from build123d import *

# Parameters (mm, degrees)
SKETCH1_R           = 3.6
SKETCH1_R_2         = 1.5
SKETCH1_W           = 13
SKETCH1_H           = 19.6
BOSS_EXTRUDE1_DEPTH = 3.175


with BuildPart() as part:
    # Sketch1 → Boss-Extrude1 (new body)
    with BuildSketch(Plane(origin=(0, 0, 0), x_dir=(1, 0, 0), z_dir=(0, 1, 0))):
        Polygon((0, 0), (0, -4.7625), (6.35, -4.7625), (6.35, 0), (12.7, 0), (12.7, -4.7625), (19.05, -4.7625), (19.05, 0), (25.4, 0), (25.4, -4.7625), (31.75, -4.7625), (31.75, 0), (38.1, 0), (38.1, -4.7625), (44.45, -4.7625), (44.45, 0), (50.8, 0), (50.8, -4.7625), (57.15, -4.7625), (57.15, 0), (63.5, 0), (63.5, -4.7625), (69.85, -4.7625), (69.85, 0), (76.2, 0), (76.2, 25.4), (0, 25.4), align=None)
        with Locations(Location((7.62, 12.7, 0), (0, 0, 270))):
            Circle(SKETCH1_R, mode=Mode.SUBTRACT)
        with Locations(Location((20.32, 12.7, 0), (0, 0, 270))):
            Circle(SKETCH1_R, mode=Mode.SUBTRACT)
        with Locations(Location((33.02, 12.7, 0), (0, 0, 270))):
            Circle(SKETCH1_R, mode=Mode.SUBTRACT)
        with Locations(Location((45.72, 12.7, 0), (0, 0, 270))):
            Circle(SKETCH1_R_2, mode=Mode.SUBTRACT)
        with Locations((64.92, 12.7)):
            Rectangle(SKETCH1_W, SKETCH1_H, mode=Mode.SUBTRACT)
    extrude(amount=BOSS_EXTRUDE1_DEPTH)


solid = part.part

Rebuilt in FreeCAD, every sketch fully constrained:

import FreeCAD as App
import Part
import Sketcher
Q = App.Units.Quantity

doc = App.newDocument("Part")
body = doc.addObject("PartDesign::Body", "Body")

sketch1 = body.newObject("Sketcher::SketchObject", "Sketch")
sketch1.AttachmentSupport = (doc.getObject("XZ_Plane"), [""])
sketch1.MapMode = "FlatFace"
sketch1.addGeometry(Part.LineSegment(App.Vector(0, 4.7625, 0), App.Vector(6.35, 4.7625, 0)), False)
sketch1.addGeometry(Part.LineSegment(App.Vector(6.35, 4.7625, 0), App.Vector(6.35, 0, 0)), False)
sketch1.addGeometry(Part.LineSegment(App.Vector(6.35, 0, 0), App.Vector(12.7, 0, 0)), False)
sketch1.addGeometry(Part.LineSegment(App.Vector(12.7, 0, 0), App.Vector(12.7, 4.7625, 0)), False)
sketch1.addGeometry(Part.LineSegment(App.Vector(12.7, 4.7625, 0), App.Vector(19.05, 4.7625, 0)), False)
sketch1.addGeometry(Part.LineSegment(App.Vector(19.05, 4.7625, 0), App.Vector(19.05, 0, 0)), False)
sketch1.addGeometry(Part.LineSegment(App.Vector(19.05, 0, 0), App.Vector(25.4, 0, 0)), False)
sketch1.addGeometry(Part.LineSegment(App.Vector(25.4, 0, 0), App.Vector(25.4, 4.7625, 0)), False)
sketch1.addGeometry(Part.LineSegment(App.Vector(25.4, 4.7625, 0), App.Vector(31.75, 4.7625, 0)), False)
sketch1.addGeometry(Part.LineSegment(App.Vector(31.75, 4.7625, 0), App.Vector(31.75, 0, 0)), False)
sketch1.addGeometry(Part.LineSegment(App.Vector(31.75, 0, 0), App.Vector(38.1, 0, 0)), False)
sketch1.addGeometry(Part.LineSegment(App.Vector(38.1, 0, 0), App.Vector(38.1, 4.7625, 0)), False)
sketch1.addGeometry(Part.LineSegment(App.Vector(38.1, 4.7625, 0), App.Vector(44.45, 4.7625, 0)), False)
sketch1.addGeometry(Part.LineSegment(App.Vector(44.45, 4.7625, 0), App.Vector(44.45, 0, 0)), False)
sketch1.addGeometry(Part.LineSegment(App.Vector(44.45, 0, 0), App.Vector(50.8, 0, 0)), False)
sketch1.addGeometry(Part.LineSegment(App.Vector(50.8, 0, 0), App.Vector(50.8, 4.7625, 0)), False)
sketch1.addGeometry(Part.LineSegment(App.Vector(50.8, 4.7625, 0), App.Vector(57.15, 4.7625, 0)), False)
sketch1.addGeometry(Part.LineSegment(App.Vector(57.15, 4.7625, 0), App.Vector(57.15, 0, 0)), False)
sketch1.addGeometry(Part.LineSegment(App.Vector(57.15, 0, 0), App.Vector(63.5, 0, 0)), False)
sketch1.addGeometry(Part.LineSegment(App.Vector(63.5, 0, 0), App.Vector(63.5, 4.7625, 0)), False)
sketch1.addGeometry(Part.LineSegment(App.Vector(63.5, 4.7625, 0), App.Vector(69.85, 4.7625, 0)), False)
sketch1.addGeometry(Part.LineSegment(App.Vector(69.85, 4.7625, 0), App.Vector(69.85, 0, 0)), False)
sketch1.addGeometry(Part.LineSegment(App.Vector(69.85, 0, 0), App.Vector(76.2, 0, 0)), False)
sketch1.addGeometry(Part.LineSegment(App.Vector(76.2, 0, 0), App.Vector(76.2, -25.4, 0)), False)
sketch1.addGeometry(Part.LineSegment(App.Vector(76.2, -25.4, 0), App.Vector(0, -25.4, 0)), False)
sketch1.addGeometry(Part.LineSegment(App.Vector(0, -25.4, 0), App.Vector(0, 4.7625, 0)), False)
sketch1.addGeometry(Part.Circle(App.Vector(7.62, -12.7, 0), App.Vector(0, 0, 1), 3.6), False)
sketch1.addGeometry(Part.Circle(App.Vector(20.32, -12.7, 0), App.Vector(0, 0, 1), 3.6), False)
sketch1.addGeometry(Part.Circle(App.Vector(33.02, -12.7, 0), App.Vector(0, 0, 1), 3.6), False)
sketch1.addGeometry(Part.Circle(App.Vector(45.72, -12.7, 0), App.Vector(0, 0, 1), 1.5), False)
sketch1.addGeometry(Part.LineSegment(App.Vector(71.42, -2.9, 0), App.Vector(58.42, -2.9, 0)), False)
sketch1.addGeometry(Part.LineSegment(App.Vector(58.42, -2.9, 0), App.Vector(58.42, -22.5, 0)), False)
sketch1.addGeometry(Part.LineSegment(App.Vector(58.42, -22.5, 0), App.Vector(71.42, -22.5, 0)), False)
sketch1.addGeometry(Part.LineSegment(App.Vector(71.42, -22.5, 0), App.Vector(71.42, -2.9, 0)), False)
sketch1.addConstraint(Sketcher.Constraint("Coincident", 0, 2, 1, 1))
sketch1.addConstraint(Sketcher.Constraint("Coincident", 1, 2, 2, 1))
sketch1.addConstraint(Sketcher.Constraint("Coincident", 2, 2, 3, 1))
sketch1.addConstraint(Sketcher.Constraint("Coincident", 3, 2, 4, 1))
sketch1.addConstraint(Sketcher.Constraint("Coincident", 4, 2, 5, 1))
sketch1.addConstraint(Sketcher.Constraint("Coincident", 5, 2, 6, 1))
sketch1.addConstraint(Sketcher.Constraint("Coincident", 6, 2, 7, 1))
sketch1.addConstraint(Sketcher.Constraint("Coincident", 7, 2, 8, 1))
sketch1.addConstraint(Sketcher.Constraint("Coincident", 8, 2, 9, 1))
sketch1.addConstraint(Sketcher.Constraint("Coincident", 9, 2, 10, 1))
sketch1.addConstraint(Sketcher.Constraint("Coincident", 10, 2, 11, 1))
sketch1.addConstraint(Sketcher.Constraint("Coincident", 11, 2, 12, 1))
sketch1.addConstraint(Sketcher.Constraint("Coincident", 12, 2, 13, 1))
sketch1.addConstraint(Sketcher.Constraint("Coincident", 13, 2, 14, 1))
sketch1.addConstraint(Sketcher.Constraint("Coincident", 14, 2, 15, 1))
sketch1.addConstraint(Sketcher.Constraint("Coincident", 15, 2, 16, 1))
sketch1.addConstraint(Sketcher.Constraint("Coincident", 16, 2, 17, 1))
sketch1.addConstraint(Sketcher.Constraint("Coincident", 17, 2, 18, 1))
sketch1.addConstraint(Sketcher.Constraint("Coincident", 18, 2, 19, 1))
sketch1.addConstraint(Sketcher.Constraint("Coincident", 19, 2, 20, 1))
sketch1.addConstraint(Sketcher.Constraint("Coincident", 20, 2, 21, 1))
sketch1.addConstraint(Sketcher.Constraint("Coincident", 21, 2, 22, 1))
sketch1.addConstraint(Sketcher.Constraint("Coincident", 22, 2, 23, 1))
sketch1.addConstraint(Sketcher.Constraint("Coincident", 23, 2, 24, 1))
sketch1.addConstraint(Sketcher.Constraint("Coincident", 24, 2, 25, 1))
sketch1.addConstraint(Sketcher.Constraint("Coincident", 25, 2, 0, 1))
sketch1.addConstraint(Sketcher.Constraint("Coincident", 30, 2, 31, 1))
sketch1.addConstraint(Sketcher.Constraint("Coincident", 31, 2, 32, 1))
sketch1.addConstraint(Sketcher.Constraint("Coincident", 32, 2, 33, 1))
sketch1.addConstraint(Sketcher.Constraint("Coincident", 33, 2, 30, 1))
sketch1.addConstraint(Sketcher.Constraint("Horizontal", 0))
sketch1.addConstraint(Sketcher.Constraint("Vertical", 1))
sketch1.addConstraint(Sketcher.Constraint("Horizontal", 2))
sketch1.addConstraint(Sketcher.Constraint("Vertical", 3))
sketch1.addConstraint(Sketcher.Constraint("Horizontal", 4))
sketch1.addConstraint(Sketcher.Constraint("Vertical", 5))
sketch1.addConstraint(Sketcher.Constraint("Horizontal", 6))
sketch1.addConstraint(Sketcher.Constraint("Vertical", 7))
sketch1.addConstraint(Sketcher.Constraint("Horizontal", 8))
sketch1.addConstraint(Sketcher.Constraint("Vertical", 9))
sketch1.addConstraint(Sketcher.Constraint("Horizontal", 10))
sketch1.addConstraint(Sketcher.Constraint("Vertical", 11))
sketch1.addConstraint(Sketcher.Constraint("Horizontal", 12))
sketch1.addConstraint(Sketcher.Constraint("Vertical", 13))
sketch1.addConstraint(Sketcher.Constraint("Horizontal", 14))
sketch1.addConstraint(Sketcher.Constraint("Vertical", 15))
sketch1.addConstraint(Sketcher.Constraint("Horizontal", 16))
sketch1.addConstraint(Sketcher.Constraint("Vertical", 17))
sketch1.addConstraint(Sketcher.Constraint("Horizontal", 18))
sketch1.addConstraint(Sketcher.Constraint("Vertical", 19))
sketch1.addConstraint(Sketcher.Constraint("Horizontal", 20))
sketch1.addConstraint(Sketcher.Constraint("Vertical", 21))
sketch1.addConstraint(Sketcher.Constraint("Horizontal", 22))
sketch1.addConstraint(Sketcher.Constraint("Vertical", 23))
sketch1.addConstraint(Sketcher.Constraint("Horizontal", 24))
sketch1.addConstraint(Sketcher.Constraint("Vertical", 25))
sketch1.addConstraint(Sketcher.Constraint("Horizontal", 30))
sketch1.addConstraint(Sketcher.Constraint("Vertical", 31))
sketch1.addConstraint(Sketcher.Constraint("Horizontal", 32))
sketch1.addConstraint(Sketcher.Constraint("Vertical", 33))
sketch1.addConstraint(Sketcher.Constraint("Equal", 26, 27))
sketch1.addConstraint(Sketcher.Constraint("Equal", 27, 28))
sketch1.addConstraint(Sketcher.Constraint("PointOnObject", 1, 2, -1))
sketch1.addConstraint(Sketcher.Constraint("PointOnObject", 5, 2, -1))
sketch1.addConstraint(Sketcher.Constraint("PointOnObject", 9, 2, -1))
sketch1.addConstraint(Sketcher.Constraint("PointOnObject", 13, 2, -1))
sketch1.addConstraint(Sketcher.Constraint("PointOnObject", 17, 2, -1))
sketch1.addConstraint(Sketcher.Constraint("PointOnObject", 21, 2, -1))
sketch1.addConstraint(Sketcher.Constraint("PointOnObject", 24, 2, -2))
sketch1.addConstraint(Sketcher.Constraint("Horizontal", 26, 3, 27, 3))
sketch1.addConstraint(Sketcher.Constraint("Horizontal", 27, 3, 28, 3))
sketch1.addConstraint(Sketcher.Constraint("Horizontal", 28, 3, 29, 3))
sketch1.addConstraint(Sketcher.Constraint("Horizontal", 0, 2, 3, 2))
sketch1.addConstraint(Sketcher.Constraint("Horizontal", 4, 2, 7, 2))
sketch1.addConstraint(Sketcher.Constraint("Horizontal", 8, 2, 11, 2))
sketch1.addConstraint(Sketcher.Constraint("Horizontal", 12, 2, 15, 2))
sketch1.addConstraint(Sketcher.Constraint("Horizontal", 16, 2, 19, 2))
sketch1.addConstraint(Sketcher.Constraint("Equal", 0, 2))
sketch1.addConstraint(Sketcher.Constraint("Equal", 2, 4))
sketch1.addConstraint(Sketcher.Constraint("Equal", 4, 6))
sketch1.addConstraint(Sketcher.Constraint("Equal", 6, 8))
sketch1.addConstraint(Sketcher.Constraint("Equal", 8, 10))
sketch1.addConstraint(Sketcher.Constraint("Equal", 10, 12))
sketch1.addConstraint(Sketcher.Constraint("Equal", 12, 14))
sketch1.addConstraint(Sketcher.Constraint("Equal", 14, 16))
sketch1.addConstraint(Sketcher.Constraint("Equal", 16, 18))
sketch1.addConstraint(Sketcher.Constraint("Equal", 18, 20))
sketch1.addConstraint(Sketcher.Constraint("Equal", 20, 22))
sketch1.addConstraint(Sketcher.Constraint("DistanceX", 24, 2, 24, 1, Q("3 in")))
sketch1.addConstraint(Sketcher.Constraint("DistanceY", 23, 2, 23, 1, Q("1 in")))
sketch1.addConstraint(Sketcher.Constraint("DistanceX", 26, 3, 28, 3, Q("1 in")))
sketch1.addConstraint(Sketcher.Constraint("DistanceX", 27, 3, 29, 3, Q("1 in")))
sketch1.addConstraint(Sketcher.Constraint("DistanceX", -1, 1, 26, 3, Q("0.3 in")))
sketch1.addConstraint(Sketcher.Constraint("DistanceY", 26, 3, -1, 1, Q("0.5 in")))
sketch1.addConstraint(Sketcher.Constraint("DistanceX", -1, 1, 27, 3, Q("0.8 in")))
sketch1.addConstraint(Sketcher.Constraint("DistanceX", -1, 1, 30, 2, Q("2.3 in")))
sketch1.addConstraint(Sketcher.Constraint("Diameter", 26, 7.2))
sketch1.addConstraint(Sketcher.Constraint("Diameter", 29, 3.0))
sketch1.addConstraint(Sketcher.Constraint("DistanceY", 1, 2, 1, 1, Q("0.1875 in")))
sketch1.addConstraint(Sketcher.Constraint("DistanceX", 30, 2, 30, 1, 13.0))
sketch1.addConstraint(Sketcher.Constraint("DistanceY", 31, 2, 31, 1, 19.6))
sketch1.addConstraint(Sketcher.Constraint("DistanceY", 30, 2, -1, 1, 2.9))
pad1 = body.newObject("PartDesign::Pad", "Pad")
pad1.Profile = sketch1
pad1.Length = Q("0.125 in")
pad1.Reversed = True

doc.recompute()
